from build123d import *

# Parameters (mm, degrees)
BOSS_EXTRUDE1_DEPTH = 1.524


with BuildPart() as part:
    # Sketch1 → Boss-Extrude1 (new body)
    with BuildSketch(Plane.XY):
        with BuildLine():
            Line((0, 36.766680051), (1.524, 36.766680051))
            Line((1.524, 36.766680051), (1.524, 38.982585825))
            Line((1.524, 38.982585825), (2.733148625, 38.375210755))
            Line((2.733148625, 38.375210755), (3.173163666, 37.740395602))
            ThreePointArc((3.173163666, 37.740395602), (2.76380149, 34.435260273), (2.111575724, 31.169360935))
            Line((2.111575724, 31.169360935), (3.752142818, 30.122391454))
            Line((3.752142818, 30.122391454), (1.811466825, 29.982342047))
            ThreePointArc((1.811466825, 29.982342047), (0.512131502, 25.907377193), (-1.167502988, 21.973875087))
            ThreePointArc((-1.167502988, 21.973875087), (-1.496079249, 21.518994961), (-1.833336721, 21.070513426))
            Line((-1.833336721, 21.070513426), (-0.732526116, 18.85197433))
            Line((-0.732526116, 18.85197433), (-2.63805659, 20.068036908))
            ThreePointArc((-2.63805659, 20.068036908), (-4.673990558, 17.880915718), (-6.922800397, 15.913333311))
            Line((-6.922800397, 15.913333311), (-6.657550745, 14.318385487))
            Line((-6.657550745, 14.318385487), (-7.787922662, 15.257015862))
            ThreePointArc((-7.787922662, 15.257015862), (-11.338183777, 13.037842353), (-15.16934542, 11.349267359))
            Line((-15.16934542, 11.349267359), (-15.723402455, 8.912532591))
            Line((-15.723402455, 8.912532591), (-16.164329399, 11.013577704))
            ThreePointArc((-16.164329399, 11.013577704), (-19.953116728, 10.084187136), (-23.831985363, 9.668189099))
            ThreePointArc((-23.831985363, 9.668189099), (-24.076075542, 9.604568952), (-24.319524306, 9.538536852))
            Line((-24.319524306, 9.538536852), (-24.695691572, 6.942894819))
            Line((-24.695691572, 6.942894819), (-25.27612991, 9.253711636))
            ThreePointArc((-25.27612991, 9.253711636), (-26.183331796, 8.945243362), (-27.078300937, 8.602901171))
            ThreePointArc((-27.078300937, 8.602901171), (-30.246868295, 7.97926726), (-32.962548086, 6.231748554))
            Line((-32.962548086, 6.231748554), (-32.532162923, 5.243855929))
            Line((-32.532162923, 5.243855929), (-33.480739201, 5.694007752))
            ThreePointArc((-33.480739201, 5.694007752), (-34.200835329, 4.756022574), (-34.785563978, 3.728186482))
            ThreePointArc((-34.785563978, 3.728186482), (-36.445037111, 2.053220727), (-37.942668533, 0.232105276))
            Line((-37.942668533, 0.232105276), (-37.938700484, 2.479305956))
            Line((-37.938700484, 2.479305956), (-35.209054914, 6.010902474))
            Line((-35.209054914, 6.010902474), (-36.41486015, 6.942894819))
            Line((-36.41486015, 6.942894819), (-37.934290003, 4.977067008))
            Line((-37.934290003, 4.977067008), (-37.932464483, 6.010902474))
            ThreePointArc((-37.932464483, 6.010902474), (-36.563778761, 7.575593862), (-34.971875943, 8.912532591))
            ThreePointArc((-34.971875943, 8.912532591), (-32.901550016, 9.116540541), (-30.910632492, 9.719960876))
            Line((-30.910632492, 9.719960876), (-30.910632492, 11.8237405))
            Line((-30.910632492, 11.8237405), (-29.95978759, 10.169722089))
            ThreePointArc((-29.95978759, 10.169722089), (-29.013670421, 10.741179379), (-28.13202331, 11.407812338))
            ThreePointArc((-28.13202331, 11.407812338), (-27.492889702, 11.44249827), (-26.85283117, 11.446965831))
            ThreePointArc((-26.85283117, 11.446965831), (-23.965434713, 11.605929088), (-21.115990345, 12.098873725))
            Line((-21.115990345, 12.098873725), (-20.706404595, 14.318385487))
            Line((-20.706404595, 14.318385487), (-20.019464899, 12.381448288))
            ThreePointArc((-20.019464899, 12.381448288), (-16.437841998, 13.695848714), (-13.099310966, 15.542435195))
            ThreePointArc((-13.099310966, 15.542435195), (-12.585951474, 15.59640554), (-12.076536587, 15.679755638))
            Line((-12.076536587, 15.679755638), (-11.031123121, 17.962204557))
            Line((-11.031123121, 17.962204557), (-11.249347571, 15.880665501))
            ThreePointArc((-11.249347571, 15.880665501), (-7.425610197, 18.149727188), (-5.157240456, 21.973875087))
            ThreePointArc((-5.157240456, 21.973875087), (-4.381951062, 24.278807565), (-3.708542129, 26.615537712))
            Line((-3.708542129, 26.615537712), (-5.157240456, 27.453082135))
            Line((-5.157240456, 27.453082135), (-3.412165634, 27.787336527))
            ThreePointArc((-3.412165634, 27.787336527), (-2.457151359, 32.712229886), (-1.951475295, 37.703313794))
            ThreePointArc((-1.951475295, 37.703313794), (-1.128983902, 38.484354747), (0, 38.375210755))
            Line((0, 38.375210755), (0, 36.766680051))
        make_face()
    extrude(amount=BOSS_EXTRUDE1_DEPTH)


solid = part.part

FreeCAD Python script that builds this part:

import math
import FreeCAD as App
import Part
import Sketcher
Q = App.Units.Quantity

doc = App.newDocument("Part")
body = doc.addObject("PartDesign::Body", "Body")

sketch1 = body.newObject("Sketcher::SketchObject", "Sketch")
sketch1.AttachmentSupport = (doc.getObject("XY_Plane"), [""])
sketch1.MapMode = "FlatFace"
sketch1.addGeometry([
    Part.LineSegment(App.Vector(1.524, 36.76668, 0), App.Vector(0, 36.76668, 0)),
    Part.LineSegment(App.Vector(0, 36.76668, 0), App.Vector(0, 38.375211, 0)),
    Part.ArcOfCircle(Part.Circle(App.Vector(-0.684125, 37.192296, 0), App.Vector(0, 0, 1), 1.366497), math.radians(59.957543), math.radians(158.039839)),
    Part.ArcOfCircle(Part.Circle(App.Vector(-57.275831, 40.787391, 0), App.Vector(0, 0, 1), 55.410251), math.radians(-13.568907), math.radians(-3.190673)),
    Part.LineSegment(App.Vector(-3.412166, 27.787337, 0), App.Vector(-5.15724, 27.453082, 0)),
    Part.LineSegment(App.Vector(-5.15724, 27.453082, 0), App.Vector(-3.708542, 26.615538, 0)),
    Part.ArcOfCircle(Part.Circle(App.Vector(-57.275831, 40.787391, 0), App.Vector(0, 0, 1), 55.410251), math.radians(-19.848323), math.radians(-14.81876)),
    Part.ArcOfCircle(Part.Circle(App.Vector(-13.782045, 24.505012, 0), App.Vector(0, 0, 1), 8.988543), math.radians(-73.634157), math.radians(-16.355475)),
    Part.LineSegment(App.Vector(-11.249348, 15.880666, 0), App.Vector(-11.031123, 17.962205, 0)),
    Part.LineSegment(App.Vector(-11.031123, 17.962205, 0), App.Vector(-12.076537, 15.679756, 0)),
    Part.ArcOfCircle(Part.Circle(App.Vector(-13.782045, 24.505012, 0), App.Vector(0, 0, 1), 8.988543), math.radians(-85.643845), math.radians(-79.062244)),
    Part.ArcOfCircle(Part.Circle(App.Vector(-26.774399, 36.325036, 0), App.Vector(0, 0, 1), 24.878194), math.radians(-74.245248), math.radians(-56.654821)),
    Part.LineSegment(App.Vector(-20.019465, 12.381448, 0), App.Vector(-20.706405, 14.318385, 0)),
    Part.LineSegment(App.Vector(-20.706405, 14.318385, 0), App.Vector(-21.11599, 12.098874, 0)),
    Part.ArcOfCircle(Part.Circle(App.Vector(-26.774399, 36.325036, 0), App.Vector(0, 0, 1), 24.878194), math.radians(-90.180634), math.radians(-76.853334)),
    Part.ArcOfCircle(Part.Circle(App.Vector(-27.078301, -2.10262, 0), App.Vector(0, 0, 1), 13.551462), math.radians(89.046667), math.radians(94.459655)),
    Part.ArcOfCircle(Part.Circle(App.Vector(-34.973894, 19.540121, 0), App.Vector(0, 0, 1), 10.627589), math.radians(-61.848736), math.radians(-49.92544)),
    Part.LineSegment(App.Vector(-29.959788, 10.169722, 0), App.Vector(-30.910632, 11.82374, 0)),
    Part.LineSegment(App.Vector(-30.910632, 11.82374, 0), App.Vector(-30.910632, 9.719961, 0)),
    Part.ArcOfCircle(Part.Circle(App.Vector(-34.973894, 19.540121, 0), App.Vector(0, 0, 1), 10.627589), math.radians(-89.98912), math.radians(-67.521826)),
    Part.ArcOfCircle(Part.Circle(App.Vector(-27.078301, -2.10262, 0), App.Vector(0, 0, 1), 13.551462), math.radians(125.625784), math.radians(143.221766)),
    Part.LineSegment(App.Vector(-37.932464, 6.010902, 0), App.Vector(-37.93429, 4.977067, 0)),
    Part.LineSegment(App.Vector(-37.93429, 4.977067, 0), App.Vector(-36.41486, 6.942895, 0)),
    Part.LineSegment(App.Vector(-36.41486, 6.942895, 0), App.Vector(-35.209055, 6.010902, 0)),
    Part.LineSegment(App.Vector(-35.209055, 6.010902, 0), App.Vector(-37.9387, 2.479306, 0)),
    Part.LineSegment(App.Vector(-37.9387, 2.479306, 0), App.Vector(-37.942669, 0.232105, 0)),
    Part.ArcOfCircle(Part.Circle(App.Vector(-17.524117, -15.033146, 0), App.Vector(0, 0, 1), 25.494022), math.radians(132.615746), math.radians(143.217595)),
    Part.ArcOfCircle(Part.Circle(App.Vector(-27.030026, -0.003642, 0), App.Vector(0, 0, 1), 8.606679), math.radians(138.547163), math.radians(154.303959)),
    Part.LineSegment(App.Vector(-33.480739, 5.694008, 0), App.Vector(-32.532163, 5.243856, 0)),
    Part.LineSegment(App.Vector(-32.532163, 5.243856, 0), App.Vector(-32.962548, 6.231749, 0)),
    Part.ArcOfCircle(Part.Circle(App.Vector(-27.030026, -0.003642, 0), App.Vector(0, 0, 1), 8.606679), math.radians(90.321376), math.radians(133.57416)),
    Part.ArcOfCircle(Part.Circle(App.Vector(-17.524117, -15.033146, 0), App.Vector(0, 0, 1), 25.494022), math.radians(107.70233), math.radians(112.009588)),
    Part.LineSegment(App.Vector(-25.27613, 9.253712, 0), App.Vector(-24.695692, 6.942895, 0)),
    Part.LineSegment(App.Vector(-24.695692, 6.942895, 0), App.Vector(-24.319524, 9.538537, 0)),
    Part.ArcOfCircle(Part.Circle(App.Vector(-17.524116, -15.033147, 0), App.Vector(0, 0, 1), 25.494024), math.radians(104.325213), math.radians(105.459019)),
    Part.ArcOfCircle(Part.Circle(App.Vector(-24.999073, 38.842163, 0), App.Vector(0, 0, 1), 29.197309), math.radians(-87.709139), math.radians(-72.386914)),
    Part.LineSegment(App.Vector(-16.164329, 11.013578, 0), App.Vector(-15.723402, 8.912533, 0)),
    Part.LineSegment(App.Vector(-15.723402, 8.912533, 0), App.Vector(-15.169345, 11.349267, 0)),
    Part.ArcOfCircle(Part.Circle(App.Vector(-24.999073, 38.842163, 0), App.Vector(0, 0, 1), 29.197309), math.radians(-70.326151), math.radians(-53.880078)),
    Part.LineSegment(App.Vector(-7.787923, 15.257016, 0), App.Vector(-6.657551, 14.318385, 0)),
    Part.LineSegment(App.Vector(-6.657551, 14.318385, 0), App.Vector(-6.9228, 15.913333, 0)),
    Part.ArcOfCircle(Part.Circle(App.Vector(-24.999073, 38.842163, 0), App.Vector(0, 0, 1), 29.197309), math.radians(-51.749013), math.radians(-40.016545)),
    Part.LineSegment(App.Vector(-2.638057, 20.068037, 0), App.Vector(-0.732526, 18.851974, 0)),
    Part.LineSegment(App.Vector(-0.732526, 18.851974, 0), App.Vector(-1.833337, 21.070513, 0)),
    Part.ArcOfCircle(Part.Circle(App.Vector(-24.999071, 38.842162, 0), App.Vector(0, 0, 1), 29.197307), math.radians(-37.493703), math.radians(-35.291345)),
    Part.ArcOfCircle(Part.Circle(App.Vector(-41.744187, 41.625778, 0), App.Vector(0, 0, 1), 45.085081), math.radians(-25.841611), math.radians(-14.96653)),
    Part.LineSegment(App.Vector(1.811467, 29.982342, 0), App.Vector(3.752143, 30.122391, 0)),
    Part.LineSegment(App.Vector(3.752143, 30.122391, 0), App.Vector(2.111576, 31.169361, 0)),
    Part.ArcOfCircle(Part.Circle(App.Vector(-41.744187, 41.625778, 0), App.Vector(0, 0, 1), 45.085082), math.radians(-13.410509), math.radians(-4.94382)),
    Part.LineSegment(App.Vector(3.173164, 37.740396, 0), App.Vector(2.733149, 38.375211, 0)),
    Part.LineSegment(App.Vector(2.733149, 38.375211, 0), App.Vector(1.524, 38.982586, 0)),
    Part.LineSegment(App.Vector(1.524, 38.982586, 0), App.Vector(1.524, 36.76668, 0)),
], False)
sketch1.addConstraint([
    Sketcher.Constraint("Coincident", 0, 2, 1, 1),
    Sketcher.Constraint("Coincident", 1, 2, 2, 1),
    Sketcher.Constraint("Coincident", 2, 2, 3, 2),
    Sketcher.Constraint("Coincident", 3, 1, 4, 1),
    Sketcher.Constraint("Coincident", 4, 2, 5, 1),
    Sketcher.Constraint("Coincident", 5, 2, 6, 2),
    Sketcher.Constraint("Coincident", 6, 1, 7, 2),
    Sketcher.Constraint("Coincident", 7, 1, 8, 1),
    Sketcher.Constraint("Coincident", 8, 2, 9, 1),
    Sketcher.Constraint("Coincident", 9, 2, 10, 2),
    Sketcher.Constraint("Coincident", 10, 1, 11, 2),
    Sketcher.Constraint("Coincident", 11, 1, 12, 1),
    Sketcher.Constraint("Coincident", 12, 2, 13, 1),
    Sketcher.Constraint("Coincident", 13, 2, 14, 2),
    Sketcher.Constraint("Coincident", 14, 1, 15, 1),
    Sketcher.Constraint("Coincident", 15, 2, 16, 2),
    Sketcher.Constraint("Coincident", 16, 1, 17, 1),
    Sketcher.Constraint("Coincident", 17, 2, 18, 1),
    Sketcher.Constraint("Coincident", 18, 2, 19, 2),
    Sketcher.Constraint("Coincident", 19, 1, 20, 1),
    Sketcher.Constraint("Coincident", 20, 2, 21, 1),
    Sketcher.Constraint("Coincident", 21, 2, 22, 1),
    Sketcher.Constraint("Coincident", 22, 2, 23, 1),
    Sketcher.Constraint("Coincident", 23, 2, 24, 1),
    Sketcher.Constraint("Coincident", 24, 2, 25, 1),
    Sketcher.Constraint("Coincident", 25, 2, 26, 2),
    Sketcher.Constraint("Coincident", 26, 1, 27, 2),
    Sketcher.Constraint("Coincident", 27, 1, 28, 1),
    Sketcher.Constraint("Coincident", 28, 2, 29, 1),
    Sketcher.Constraint("Coincident", 29, 2, 30, 2),
    Sketcher.Constraint("Coincident", 30, 1, 31, 2),
    Sketcher.Constraint("Coincident", 31, 1, 32, 1),
    Sketcher.Constraint("Coincident", 32, 2, 33, 1),
    Sketcher.Constraint("Coincident", 33, 2, 34, 2),
    Sketcher.Constraint("Coincident", 34, 1, 35, 1),
    Sketcher.Constraint("Coincident", 35, 2, 36, 1),
    Sketcher.Constraint("Coincident", 36, 2, 37, 1),
    Sketcher.Constraint("Coincident", 37, 2, 38, 1),
    Sketcher.Constraint("Coincident", 38, 2, 39, 1),
    Sketcher.Constraint("Coincident", 39, 2, 40, 1),
    Sketcher.Constraint("Coincident", 40, 2, 41, 1),
    Sketcher.Constraint("Coincident", 41, 2, 42, 1),
    Sketcher.Constraint("Coincident", 42, 2, 43, 1),
    Sketcher.Constraint("Coincident", 43, 2, 44, 1),
    Sketcher.Constraint("Coincident", 44, 2, 45, 1),
    Sketcher.Constraint("Coincident", 45, 2, 46, 1),
    Sketcher.Constraint("Coincident", 46, 2, 47, 1),
    Sketcher.Constraint("Coincident", 47, 2, 48, 1),
    Sketcher.Constraint("Coincident", 48, 2, 49, 1),
    Sketcher.Constraint("Coincident", 49, 2, 50, 1),
    Sketcher.Constraint("Coincident", 50, 2, 51, 1),
    Sketcher.Constraint("Coincident", 51, 2, 0, 1),
    Sketcher.Constraint("Horizontal", 0),
    Sketcher.Constraint("Vertical", 1),
    Sketcher.Constraint("Vertical", 18),
    Sketcher.Constraint("Vertical", 51),
    Sketcher.Constraint("Coincident", 6, 3, 3, 3),
    Sketcher.Constraint("Coincident", 10, 3, 7, 3),
    Sketcher.Constraint("Coincident", 14, 3, 11, 3),
    Sketcher.Constraint("Coincident", 19, 3, 16, 3),
    Sketcher.Constraint("Coincident", 20, 3, 15, 3),
    Sketcher.Constraint("Coincident", 30, 3, 27, 3),
    Sketcher.Constraint("Coincident", 31, 3, 26, 3),
    Sketcher.Constraint("Coincident", 34, 3, 26, 3),
    Sketcher.Constraint("Coincident", 38, 3, 35, 3),
    Sketcher.Constraint("Coincident", 41, 3, 35, 3),
    Sketcher.Constraint("Coincident", 44, 3, 35, 3),
    Sketcher.Constraint("Coincident", 48, 3, 45, 3),
    Sketcher.Constraint("PointOnObject", 0, 2, -2),
    Sketcher.Constraint("DistanceX", 0, 2, 0, 1, Q("0.06 in")),
    Sketcher.Constraint("Distance", 23, Q("0.06 in")),
    Sketcher.Constraint("Radius", 3, Q("55.410251 mm")),
    Sketcher.Constraint("Radius", 6, Q("55.410251 mm")),
    Sketcher.Constraint("Radius", 16, Q("10.627589 mm")),
    Sketcher.Constraint("Radius", 19, Q("10.627589 mm")),
    Sketcher.Constraint("Radius", 20, Q("13.551462 mm")),
    Sketcher.Constraint("Radius", 26, Q("25.494022 mm")),
    Sketcher.Constraint("Radius", 27, Q("8.606679 mm")),
    Sketcher.Constraint("Radius", 30, Q("8.606679 mm")),
    Sketcher.Constraint("Radius", 35, Q("29.197309 mm")),
    Sketcher.Constraint("Radius", 38, Q("29.197309 mm")),
    Sketcher.Constraint("Radius", 41, Q("29.197309 mm")),
    Sketcher.Constraint("Radius", 45, Q("45.085081 mm")),
    Sketcher.Constraint("Radius", 48, Q("45.085082 mm")),
    Sketcher.Constraint("DistanceX", 7, 3, -1, 1, Q("0.5426002 in")),
    Sketcher.Constraint("Radius", 2, Q("1.366497 mm")),
    Sketcher.Constraint("Radius", 7, Q("8.988543 mm")),
    Sketcher.Constraint("Radius", 10, Q("8.988543 mm")),
    Sketcher.Constraint("Radius", 11, Q("24.878194 mm")),
    Sketcher.Constraint("Radius", 14, Q("24.878194 mm")),
    Sketcher.Constraint("Radius", 15, Q("13.551462 mm")),
    Sketcher.Constraint("Radius", 31, Q("25.494022 mm")),
    Sketcher.Constraint("Radius", 34, Q("25.494024 mm")),
    Sketcher.Constraint("Radius", 44, Q("29.197307 mm")),
    Sketcher.Constraint("Distance", 4, Q("1.776798 mm")),
    Sketcher.Constraint("Distance", 32, Q("2.3826 mm")),
    Sketcher.Constraint("Distance", 42, Q("2.260499 mm")),
    Sketcher.Constraint("Distance", 49, Q("0.772401 mm")),
    Sketcher.Constraint("DistanceY", 1, 1, 1, 2, Q("1.608531 mm")),
    Sketcher.Constraint("DistanceY", 18, 2, 18, 1, Q("2.10378 mm")),
    Sketcher.Constraint("DistanceX", 11, 3, -1, 1, Q("26.774399 mm")),
    Sketcher.Constraint("DistanceX", 15, 3, -1, 1, Q("27.078301 mm")),
    Sketcher.Constraint("DistanceX", 24, 2, -1, 1, Q("37.9387 mm")),
    Sketcher.Constraint("DistanceX", 30, 1, -1, 1, Q("27.078301 mm")),
    Sketcher.Constraint("DistanceY", -1, 1, 30, 1, Q("8.602901 mm")),
    Sketcher.Constraint("DistanceX", 40, 2, -1, 1, Q("6.9228 mm")),
    Sketcher.Constraint("Distance", 9, Q("2.510471 mm")),
    Sketcher.Constraint("Distance", 22, Q("2.484582 mm")),
    Sketcher.Constraint("Distance", 28, Q("1.049968 mm")),
    Sketcher.Constraint("Distance", 37, Q("2.498931 mm")),
    Sketcher.Constraint("Distance", 43, Q("2.476631 mm")),
    Sketcher.Constraint("DistanceY", 51, 2, 51, 1, Q("2.215906 mm")),
    Sketcher.Constraint("DistanceX", 3, 3, -1, 1, Q("57.275831 mm")),
    Sketcher.Constraint("DistanceY", -1, 1, 3, 3, Q("40.787391 mm")),
    Sketcher.Constraint("DistanceY", -1, 1, 7, 3, Q("24.505012 mm")),
    Sketcher.Constraint("DistanceY", 15, 3, -1, 1, Q("2.10262 mm")),
    Sketcher.Constraint("DistanceY", -1, 1, 16, 3, Q("19.540121 mm")),
    Sketcher.Constraint("DistanceX", 44, 3, -1, 1, Q("24.999071 mm")),
    Sketcher.Constraint("DistanceY", -1, 1, 44, 3, Q("38.842162 mm")),
    Sketcher.Constraint("DistanceY", -1, 1, 45, 3, Q("41.625778 mm")),
    Sketcher.Constraint("DistanceY", -1, 1, 0, 2, Q("36.76668 mm")),
    Sketcher.Constraint("DistanceX", 4, 2, -1, 1, Q("5.15724 mm")),
    Sketcher.Constraint("DistanceX", 10, 1, -1, 1, Q("13.099311 mm")),
    Sketcher.Constraint("DistanceY", -1, 1, 11, 1, Q("12.381448 mm")),
    Sketcher.Constraint("DistanceX", 13, 2, -1, 1, Q("21.11599 mm")),
    Sketcher.Constraint("DistanceY", -1, 1, 17, 2, Q("11.82374 mm")),
    Sketcher.Constraint("DistanceX", 21, 2, -1, 1, Q("37.93429 mm")),
    Sketcher.Constraint("DistanceX", 22, 2, -1, 1, Q("36.41486 mm")),
    Sketcher.Constraint("DistanceX", 25, 2, -1, 1, Q("37.942669 mm")),
    Sketcher.Constraint("DistanceX", 27, 1, -1, 1, Q("33.480739 mm")),
    Sketcher.Constraint("DistanceX", 29, 2, -1, 1, Q("32.962548 mm")),
    Sketcher.Constraint("DistanceY", -1, 1, 29, 2, Q("6.231749 mm")),
    Sketcher.Constraint("DistanceX", 31, 1, -1, 1, Q("25.27613 mm")),
    Sketcher.Constraint("DistanceY", -1, 1, 31, 1, Q("9.253712 mm")),
    Sketcher.Constraint("DistanceX", 32, 2, -1, 1, Q("24.695692 mm")),
    Sketcher.Constraint("DistanceX", 35, 2, -1, 1, Q("16.164329 mm")),
    Sketcher.Constraint("DistanceX", 39, 2, -1, 1, Q("6.657551 mm")),
    Sketcher.Constraint("DistanceY", -1, 1, 46, 2, Q("30.122391 mm")),
    Sketcher.Constraint("DistanceY", -1, 1, 47, 2, Q("31.169361 mm")),
    Sketcher.Constraint("DistanceX", -1, 1, 49, 2, Q("2.733149 mm")),
    Sketcher.Constraint("DistanceY", -1, 1, 49, 2, Q("38.375211 mm")),
    Sketcher.Constraint("Distance", 5, Q("1.673382 mm")),
    Sketcher.Constraint("Distance", 8, Q("2.092947 mm")),
    Sketcher.Constraint("Distance", 12, Q("2.055143 mm")),
    Sketcher.Constraint("Distance", 13, Q("2.256988 mm")),
    Sketcher.Constraint("Distance", 17, Q("1.907848 mm")),
    Sketcher.Constraint("Distance", 21, Q("1.033837 mm")),
    Sketcher.Constraint("Distance", 24, Q("4.463534 mm")),
    Sketcher.Constraint("Distance", 25, Q("2.247204 mm")),
    Sketcher.Constraint("Distance", 29, Q("1.077573 mm")),
    Sketcher.Constraint("Distance", 33, Q("2.622758 mm")),
    Sketcher.Constraint("Distance", 36, Q("2.146813 mm")),
    Sketcher.Constraint("Distance", 39, Q("1.469275 mm")),
    Sketcher.Constraint("Distance", 40, Q("1.616854 mm")),
    Sketcher.Constraint("Distance", 46, Q("1.945723 mm")),
    Sketcher.Constraint("Distance", 47, Q("1.946177 mm")),
    Sketcher.Constraint("DistanceX", 2, 3, -1, 1, Q("0.684125 mm")),
    Sketcher.Constraint("DistanceX", 16, 3, -1, 1, Q("34.973894 mm")),
    Sketcher.Constraint("DistanceX", 45, 3, -1, 1, Q("41.744187 mm")),
    Sketcher.Constraint("DistanceX", 3, 1, -1, 1, Q("3.412166 mm")),
    Sketcher.Constraint("DistanceX", 7, 1, -1, 1, Q("11.249348 mm")),
    Sketcher.Constraint("DistanceX", 8, 2, -1, 1, Q("11.031123 mm")),
    Sketcher.Constraint("DistanceX", 20, 2, -1, 1, Q("37.932464 mm")),
    Sketcher.Constraint("DistanceX", 36, 2, -1, 1, Q("15.723402 mm")),
    Sketcher.Constraint("DistanceX", 41, 2, -1, 1, Q("2.638057 mm")),
    Sketcher.Constraint("DistanceX", 42, 2, -1, 1, Q("0.732526 mm")),
])
pad1 = body.newObject("PartDesign::Pad", "Pad")
pad1.Profile = sketch1
pad1.Length = Q("0.06 in")

doc.recompute()
